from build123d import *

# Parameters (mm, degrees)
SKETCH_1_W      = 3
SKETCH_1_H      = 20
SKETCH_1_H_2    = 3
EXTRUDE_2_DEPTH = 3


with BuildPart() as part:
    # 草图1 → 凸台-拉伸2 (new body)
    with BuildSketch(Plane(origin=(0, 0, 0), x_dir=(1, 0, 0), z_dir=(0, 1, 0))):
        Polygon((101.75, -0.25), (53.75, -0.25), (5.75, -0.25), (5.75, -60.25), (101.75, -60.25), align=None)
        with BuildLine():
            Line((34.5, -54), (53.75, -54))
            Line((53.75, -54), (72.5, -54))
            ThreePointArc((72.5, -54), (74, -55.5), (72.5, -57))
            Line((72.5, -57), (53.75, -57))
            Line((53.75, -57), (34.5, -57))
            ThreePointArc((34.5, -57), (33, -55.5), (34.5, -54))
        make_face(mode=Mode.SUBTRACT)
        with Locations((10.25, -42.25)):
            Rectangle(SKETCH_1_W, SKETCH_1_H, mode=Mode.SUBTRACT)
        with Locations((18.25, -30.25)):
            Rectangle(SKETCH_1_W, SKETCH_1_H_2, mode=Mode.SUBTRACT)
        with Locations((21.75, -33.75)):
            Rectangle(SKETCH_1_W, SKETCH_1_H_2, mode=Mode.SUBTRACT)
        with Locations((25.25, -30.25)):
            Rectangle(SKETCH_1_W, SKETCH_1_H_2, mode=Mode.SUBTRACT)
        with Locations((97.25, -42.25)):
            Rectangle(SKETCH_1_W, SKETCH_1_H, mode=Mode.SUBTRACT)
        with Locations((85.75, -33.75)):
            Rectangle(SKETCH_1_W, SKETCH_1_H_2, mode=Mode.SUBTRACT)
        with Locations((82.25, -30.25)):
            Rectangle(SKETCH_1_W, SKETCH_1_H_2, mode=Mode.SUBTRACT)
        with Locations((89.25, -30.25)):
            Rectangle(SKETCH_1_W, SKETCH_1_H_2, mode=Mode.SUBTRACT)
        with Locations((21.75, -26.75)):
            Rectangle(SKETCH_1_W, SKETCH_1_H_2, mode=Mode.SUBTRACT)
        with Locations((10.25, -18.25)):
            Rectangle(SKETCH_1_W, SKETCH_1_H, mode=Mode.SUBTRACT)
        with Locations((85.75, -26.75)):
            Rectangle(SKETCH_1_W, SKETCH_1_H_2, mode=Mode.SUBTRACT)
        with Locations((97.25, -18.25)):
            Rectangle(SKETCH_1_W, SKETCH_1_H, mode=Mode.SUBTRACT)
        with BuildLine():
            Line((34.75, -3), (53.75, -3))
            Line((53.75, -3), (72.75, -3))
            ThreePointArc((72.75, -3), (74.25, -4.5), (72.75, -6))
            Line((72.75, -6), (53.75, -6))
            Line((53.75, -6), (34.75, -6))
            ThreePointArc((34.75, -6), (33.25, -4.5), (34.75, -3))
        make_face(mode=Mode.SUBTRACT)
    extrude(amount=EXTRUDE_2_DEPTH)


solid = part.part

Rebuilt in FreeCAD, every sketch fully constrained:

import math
import FreeCAD as App
import Part
import Sketcher
from FreeCAD import Vector
Q = App.Units.Quantity


def add_polygon(sketch, points):
    """Adds a closed chain of lines whose ends are joined by coincident constraints."""
    first, n = sketch.GeometryCount, len(points)
    for a, b in zip(points, points[1:] + points[:1]):
        sketch.addGeometry(Part.LineSegment(App.Vector(*a, 0), App.Vector(*b, 0)), False)
    for i in range(n):
        sketch.addConstraint(Sketcher.Constraint("Coincident", first + i, 2, first + (i + 1) % n, 1))

doc = App.newDocument("Part")
params = doc.addObject("Spreadsheet::Sheet", "Params")
for row, (alias, value) in enumerate([
    ("sketch1_radius", "1.5 mm"),
    ("sketch1_width", "96 mm"),
    ("sketch1_width2", "38 mm"),
    ("sketch1_width3", "3 mm"),
    ("sketch1_height", "60 mm"),
    ("pad1_length", "3 mm"),
], start=1):
    params.set(f"A{row}", alias)
    params.set(f"B{row}", "=" + value)
    params.setAlias(f"B{row}", alias)

body = doc.addObject("PartDesign::Body", "Body")

# Sketch on XZ plane
sketch1 = doc.addObject("Sketcher::SketchObject", "Sketch")
body.addObject(sketch1)
sketch1.AttachmentSupport = (doc.XZ_Plane, [""])
sketch1.MapMode = "FlatFace"
add_polygon(sketch1, [(101.8, 0.2), (5.8, 0.2), (5.8, 60.2), (101.8, 60.2)])  # lines 0-3
sketch1.addGeometry(Part.ArcOfCircle(Part.Circle(Vector(34.5, 55.5, 0), Vector(0, 0, 1), 1.5), math.radians(90), math.radians(270)), False)  # 4
sketch1.addGeometry(Part.LineSegment(Vector(34.5, 54, 0), Vector(72.5, 54, 0)), False)  # 5
sketch1.addGeometry(Part.ArcOfCircle(Part.Circle(Vector(72.5, 55.5, 0), Vector(0, 0, 1), 1.5), math.radians(-90), math.radians(90)), False)  # 6
sketch1.addGeometry(Part.LineSegment(Vector(72.5, 57, 0), Vector(34.5, 57, 0)), False)  # 7
add_polygon(sketch1, [(11.8, 52.2), (8.8, 52.2), (8.8, 32.2), (11.8, 32.2)])  # lines 8-11
add_polygon(sketch1, [(19.8, 31.8), (16.8, 31.8), (16.8, 28.8), (19.8, 28.8)])  # lines 12-15
add_polygon(sketch1, [(23.2, 35.2), (20.2, 35.2), (20.2, 32.2), (23.2, 32.2)])  # lines 16-19
add_polygon(sketch1, [(26.8, 31.8), (23.8, 31.8), (23.8, 28.8), (26.8, 28.8)])  # lines 20-23
add_polygon(sketch1, [(98.8, 52.2), (95.8, 52.2), (95.8, 32.2), (98.8, 32.2)])  # lines 24-27
add_polygon(sketch1, [(87.2, 35.2), (84.2, 35.2), (84.2, 32.2), (87.2, 32.2)])  # lines 28-31
add_polygon(sketch1, [(83.8, 31.8), (80.8, 31.8), (80.8, 28.8), (83.8, 28.8)])  # lines 32-35
add_polygon(sketch1, [(90.8, 31.8), (87.8, 31.8), (87.8, 28.8), (90.8, 28.8)])  # lines 36-39
add_polygon(sketch1, [(23.2, 28.2), (20.2, 28.2), (20.2, 25.2), (23.2, 25.2)])  # lines 40-43
add_polygon(sketch1, [(11.8, 28.2), (8.8, 28.2), (8.8, 8.2), (11.8, 8.2)])  # lines 44-47
add_polygon(sketch1, [(87.2, 28.2), (84.2, 28.2), (84.2, 25.2), (87.2, 25.2)])  # lines 48-51
add_polygon(sketch1, [(98.8, 28.2), (95.8, 28.2), (95.8, 8.2), (98.8, 8.2)])  # lines 52-55
sketch1.addGeometry(Part.ArcOfCircle(Part.Circle(Vector(34.8, 4.5, 0), Vector(0, 0, 1), 1.5), math.radians(90), math.radians(270)), False)  # 56
sketch1.addGeometry(Part.LineSegment(Vector(34.8, 3, 0), Vector(72.8, 3, 0)), False)  # 57
sketch1.addGeometry(Part.ArcOfCircle(Part.Circle(Vector(72.8, 4.5, 0), Vector(0, 0, 1), 1.5), math.radians(-90), math.radians(90)), False)  # 58
sketch1.addGeometry(Part.LineSegment(Vector(72.8, 6, 0), Vector(34.8, 6, 0)), False)  # 59
sketch1.addConstraint([
    Sketcher.Constraint("Tangent", 4, 2, 5, 1),
    Sketcher.Constraint("Tangent", 5, 2, 6, 1),
    Sketcher.Constraint("Tangent", 6, 2, 7, 1),
    Sketcher.Constraint("Tangent", 7, 2, 4, 1),
    Sketcher.Constraint("Tangent", 56, 2, 57, 1),
    Sketcher.Constraint("Tangent", 57, 2, 58, 1),
    Sketcher.Constraint("Tangent", 58, 2, 59, 1),
    Sketcher.Constraint("Tangent", 59, 2, 56, 1),
    Sketcher.Constraint("Horizontal", 0),
    Sketcher.Constraint("Vertical", 1),
    Sketcher.Constraint("Horizontal", 2),
    Sketcher.Constraint("Vertical", 3),
    Sketcher.Constraint("Horizontal", 5),
    Sketcher.Constraint("Horizontal", 7),
    Sketcher.Constraint("Horizontal", 8),
    Sketcher.Constraint("Vertical", 9),
    Sketcher.Constraint("Horizontal", 10),
    Sketcher.Constraint("Vertical", 11),
    Sketcher.Constraint("Horizontal", 12),
    Sketcher.Constraint("Vertical", 13),
    Sketcher.Constraint("Horizontal", 14),
    Sketcher.Constraint("Vertical", 15),
    Sketcher.Constraint("Horizontal", 16),
    Sketcher.Constraint("Vertical", 17),
    Sketcher.Constraint("Horizontal", 18),
    Sketcher.Constraint("Vertical", 19),
    Sketcher.Constraint("Horizontal", 20),
    Sketcher.Constraint("Vertical", 21),
    Sketcher.Constraint("Horizontal", 22),
    Sketcher.Constraint("Vertical", 23),
    Sketcher.Constraint("Horizontal", 24),
    Sketcher.Constraint("Vertical", 25),
    Sketcher.Constraint("Horizontal", 26),
    Sketcher.Constraint("Vertical", 27),
    Sketcher.Constraint("Horizontal", 28),
    Sketcher.Constraint("Vertical", 29),
    Sketcher.Constraint("Horizontal", 30),
    Sketcher.Constraint("Vertical", 31),
    Sketcher.Constraint("Horizontal", 32),
    Sketcher.Constraint("Vertical", 33),
    Sketcher.Constraint("Horizontal", 34),
    Sketcher.Constraint("Vertical", 35),
    Sketcher.Constraint("Horizontal", 36),
    Sketcher.Constraint("Vertical", 37),
    Sketcher.Constraint("Horizontal", 38),
    Sketcher.Constraint("Vertical", 39),
    Sketcher.Constraint("Horizontal", 40),
    Sketcher.Constraint("Vertical", 41),
    Sketcher.Constraint("Horizontal", 42),
    Sketcher.Constraint("Vertical", 43),
    Sketcher.Constraint("Horizontal", 44),
    Sketcher.Constraint("Vertical", 45),
    Sketcher.Constraint("Horizontal", 46),
    Sketcher.Constraint("Vertical", 47),
    Sketcher.Constraint("Horizontal", 48),
    Sketcher.Constraint("Vertical", 49),
    Sketcher.Constraint("Horizontal", 50),
    Sketcher.Constraint("Vertical", 51),
    Sketcher.Constraint("Horizontal", 52),
    Sketcher.Constraint("Vertical", 53),
    Sketcher.Constraint("Horizontal", 54),
    Sketcher.Constraint("Vertical", 55),
    Sketcher.Constraint("Horizontal", 57),
    Sketcher.Constraint("Horizontal", 59),
    Sketcher.Constraint("Equal", 6, 56),
    Sketcher.Constraint("Horizontal", 10, 2, 17, 2),
    Sketcher.Constraint("Horizontal", 15, 2, 20, 2),
    Sketcher.Constraint("Horizontal", 14, 2, 21, 2),
    Sketcher.Constraint("Horizontal", 11, 2, 24, 2),
    Sketcher.Constraint("Horizontal", 18, 2, 25, 2),
    Sketcher.Constraint("Horizontal", 19, 2, 28, 2),
    Sketcher.Constraint("Horizontal", 26, 2, 29, 2),
    Sketcher.Constraint("Horizontal", 23, 2, 32, 2),
    Sketcher.Constraint("Horizontal", 22, 2, 33, 2),
    Sketcher.Constraint("Horizontal", 35, 2, 36, 2),
    Sketcher.Constraint("Horizontal", 34, 2, 37, 2),
    Sketcher.Constraint("Horizontal", 43, 2, 44, 2),
    Sketcher.Constraint("Horizontal", 47, 2, 48, 2),
    Sketcher.Constraint("Horizontal", 42, 2, 49, 2),
    Sketcher.Constraint("Horizontal", 51, 2, 52, 2),
    Sketcher.Constraint("Horizontal", 46, 2, 53, 2),
    Sketcher.Constraint("Vertical", 17, 2, 40, 2),
    Sketcher.Constraint("Vertical", 19, 2, 42, 2),
    Sketcher.Constraint("Vertical", 9, 2, 44, 2),
    Sketcher.Constraint("Vertical", 11, 2, 46, 2),
    Sketcher.Constraint("Vertical", 29, 2, 48, 2),
    Sketcher.Constraint("Vertical", 31, 2, 50, 2),
    Sketcher.Constraint("Vertical", 25, 2, 52, 2),
    Sketcher.Constraint("Vertical", 27, 2, 54, 2),
    Sketcher.Constraint("Equal", 10, 12),
    Sketcher.Constraint("Equal", 14, 16),
    Sketcher.Constraint("Equal", 18, 20),
    Sketcher.Constraint("Equal", 22, 24),
    Sketcher.Constraint("Equal", 26, 28),
    Sketcher.Constraint("Equal", 30, 32),
    Sketcher.Constraint("Equal", 34, 36),
    Sketcher.Constraint("Equal", 7, 57),
    Sketcher.Constraint("Equal", 54, 13),
    Sketcher.Constraint("Equal", 15, 17),
    Sketcher.Constraint("Equal", 39, 41),
    Sketcher.Constraint("Equal", 27, 45),
    Sketcher.Constraint("Radius", 4, Q("1.5 mm")),
    Sketcher.Constraint("DistanceX", 0, 2, 0, 1, Q("96 mm")),
    Sketcher.Constraint("DistanceX", 5, 1, 5, 2, Q("38 mm")),
    Sketcher.Constraint("DistanceX", 8, 2, 8, 1, Q("3 mm")),
    Sketcher.Constraint("DistanceY", 1, 1, 1, 2, Q("60 mm")),
    Sketcher.Constraint("DistanceY", 9, 2, 9, 1, Q("20 mm")),
    Sketcher.Constraint("DistanceY", -1, 1, 4, 2, Q("54 mm")),
    Sketcher.Constraint("DistanceY", -1, 1, 56, 2, Q("3 mm")),
    Sketcher.Constraint("DistanceX", -1, 1, 4, 3, Q("34.5 mm")),
    Sketcher.Constraint("DistanceX", -1, 1, 56, 3, Q("34.75 mm")),
    Sketcher.Constraint("DistanceX", -1, 1, 0, 2, Q("5.75 mm")),
    Sketcher.Constraint("DistanceY", -1, 1, 0, 2, Q("0.25 mm")),
    Sketcher.Constraint("DistanceX", -1, 1, 8, 2, Q("8.75 mm")),
    Sketcher.Constraint("DistanceY", -1, 1, 8, 2, Q("52.25 mm")),
    Sketcher.Constraint("DistanceX", -1, 1, 12, 2, Q("16.75 mm")),
    Sketcher.Constraint("DistanceY", -1, 1, 12, 2, Q("31.75 mm")),
    Sketcher.Constraint("DistanceX", -1, 1, 16, 2, Q("20.25 mm")),
    Sketcher.Constraint("DistanceX", -1, 1, 20, 2, Q("23.75 mm")),
    Sketcher.Constraint("DistanceX", -1, 1, 24, 2, Q("95.75 mm")),
    Sketcher.Constraint("DistanceX", -1, 1, 28, 2, Q("84.25 mm")),
    Sketcher.Constraint("DistanceX", -1, 1, 32, 2, Q("80.75 mm")),
    Sketcher.Constraint("DistanceX", -1, 1, 36, 2, Q("87.75 mm")),
    Sketcher.Constraint("DistanceY", -1, 1, 40, 2, Q("28.25 mm")),
])
sketch1.setExpression("Constraints[153]", "Params.sketch1_radius")
sketch1.setExpression("Constraints[154]", "Params.sketch1_width")
sketch1.setExpression("Constraints[155]", "Params.sketch1_width2")
sketch1.setExpression("Constraints[156]", "Params.sketch1_width3")
sketch1.setExpression("Constraints[157]", "Params.sketch1_height")
pad1 = doc.addObject("PartDesign::Pad", "Pad")
body.addObject(pad1)
pad1.Profile = sketch1
pad1.setExpression("Length", "Params.pad1_length")
pad1.Reversed = True

doc.recompute()
